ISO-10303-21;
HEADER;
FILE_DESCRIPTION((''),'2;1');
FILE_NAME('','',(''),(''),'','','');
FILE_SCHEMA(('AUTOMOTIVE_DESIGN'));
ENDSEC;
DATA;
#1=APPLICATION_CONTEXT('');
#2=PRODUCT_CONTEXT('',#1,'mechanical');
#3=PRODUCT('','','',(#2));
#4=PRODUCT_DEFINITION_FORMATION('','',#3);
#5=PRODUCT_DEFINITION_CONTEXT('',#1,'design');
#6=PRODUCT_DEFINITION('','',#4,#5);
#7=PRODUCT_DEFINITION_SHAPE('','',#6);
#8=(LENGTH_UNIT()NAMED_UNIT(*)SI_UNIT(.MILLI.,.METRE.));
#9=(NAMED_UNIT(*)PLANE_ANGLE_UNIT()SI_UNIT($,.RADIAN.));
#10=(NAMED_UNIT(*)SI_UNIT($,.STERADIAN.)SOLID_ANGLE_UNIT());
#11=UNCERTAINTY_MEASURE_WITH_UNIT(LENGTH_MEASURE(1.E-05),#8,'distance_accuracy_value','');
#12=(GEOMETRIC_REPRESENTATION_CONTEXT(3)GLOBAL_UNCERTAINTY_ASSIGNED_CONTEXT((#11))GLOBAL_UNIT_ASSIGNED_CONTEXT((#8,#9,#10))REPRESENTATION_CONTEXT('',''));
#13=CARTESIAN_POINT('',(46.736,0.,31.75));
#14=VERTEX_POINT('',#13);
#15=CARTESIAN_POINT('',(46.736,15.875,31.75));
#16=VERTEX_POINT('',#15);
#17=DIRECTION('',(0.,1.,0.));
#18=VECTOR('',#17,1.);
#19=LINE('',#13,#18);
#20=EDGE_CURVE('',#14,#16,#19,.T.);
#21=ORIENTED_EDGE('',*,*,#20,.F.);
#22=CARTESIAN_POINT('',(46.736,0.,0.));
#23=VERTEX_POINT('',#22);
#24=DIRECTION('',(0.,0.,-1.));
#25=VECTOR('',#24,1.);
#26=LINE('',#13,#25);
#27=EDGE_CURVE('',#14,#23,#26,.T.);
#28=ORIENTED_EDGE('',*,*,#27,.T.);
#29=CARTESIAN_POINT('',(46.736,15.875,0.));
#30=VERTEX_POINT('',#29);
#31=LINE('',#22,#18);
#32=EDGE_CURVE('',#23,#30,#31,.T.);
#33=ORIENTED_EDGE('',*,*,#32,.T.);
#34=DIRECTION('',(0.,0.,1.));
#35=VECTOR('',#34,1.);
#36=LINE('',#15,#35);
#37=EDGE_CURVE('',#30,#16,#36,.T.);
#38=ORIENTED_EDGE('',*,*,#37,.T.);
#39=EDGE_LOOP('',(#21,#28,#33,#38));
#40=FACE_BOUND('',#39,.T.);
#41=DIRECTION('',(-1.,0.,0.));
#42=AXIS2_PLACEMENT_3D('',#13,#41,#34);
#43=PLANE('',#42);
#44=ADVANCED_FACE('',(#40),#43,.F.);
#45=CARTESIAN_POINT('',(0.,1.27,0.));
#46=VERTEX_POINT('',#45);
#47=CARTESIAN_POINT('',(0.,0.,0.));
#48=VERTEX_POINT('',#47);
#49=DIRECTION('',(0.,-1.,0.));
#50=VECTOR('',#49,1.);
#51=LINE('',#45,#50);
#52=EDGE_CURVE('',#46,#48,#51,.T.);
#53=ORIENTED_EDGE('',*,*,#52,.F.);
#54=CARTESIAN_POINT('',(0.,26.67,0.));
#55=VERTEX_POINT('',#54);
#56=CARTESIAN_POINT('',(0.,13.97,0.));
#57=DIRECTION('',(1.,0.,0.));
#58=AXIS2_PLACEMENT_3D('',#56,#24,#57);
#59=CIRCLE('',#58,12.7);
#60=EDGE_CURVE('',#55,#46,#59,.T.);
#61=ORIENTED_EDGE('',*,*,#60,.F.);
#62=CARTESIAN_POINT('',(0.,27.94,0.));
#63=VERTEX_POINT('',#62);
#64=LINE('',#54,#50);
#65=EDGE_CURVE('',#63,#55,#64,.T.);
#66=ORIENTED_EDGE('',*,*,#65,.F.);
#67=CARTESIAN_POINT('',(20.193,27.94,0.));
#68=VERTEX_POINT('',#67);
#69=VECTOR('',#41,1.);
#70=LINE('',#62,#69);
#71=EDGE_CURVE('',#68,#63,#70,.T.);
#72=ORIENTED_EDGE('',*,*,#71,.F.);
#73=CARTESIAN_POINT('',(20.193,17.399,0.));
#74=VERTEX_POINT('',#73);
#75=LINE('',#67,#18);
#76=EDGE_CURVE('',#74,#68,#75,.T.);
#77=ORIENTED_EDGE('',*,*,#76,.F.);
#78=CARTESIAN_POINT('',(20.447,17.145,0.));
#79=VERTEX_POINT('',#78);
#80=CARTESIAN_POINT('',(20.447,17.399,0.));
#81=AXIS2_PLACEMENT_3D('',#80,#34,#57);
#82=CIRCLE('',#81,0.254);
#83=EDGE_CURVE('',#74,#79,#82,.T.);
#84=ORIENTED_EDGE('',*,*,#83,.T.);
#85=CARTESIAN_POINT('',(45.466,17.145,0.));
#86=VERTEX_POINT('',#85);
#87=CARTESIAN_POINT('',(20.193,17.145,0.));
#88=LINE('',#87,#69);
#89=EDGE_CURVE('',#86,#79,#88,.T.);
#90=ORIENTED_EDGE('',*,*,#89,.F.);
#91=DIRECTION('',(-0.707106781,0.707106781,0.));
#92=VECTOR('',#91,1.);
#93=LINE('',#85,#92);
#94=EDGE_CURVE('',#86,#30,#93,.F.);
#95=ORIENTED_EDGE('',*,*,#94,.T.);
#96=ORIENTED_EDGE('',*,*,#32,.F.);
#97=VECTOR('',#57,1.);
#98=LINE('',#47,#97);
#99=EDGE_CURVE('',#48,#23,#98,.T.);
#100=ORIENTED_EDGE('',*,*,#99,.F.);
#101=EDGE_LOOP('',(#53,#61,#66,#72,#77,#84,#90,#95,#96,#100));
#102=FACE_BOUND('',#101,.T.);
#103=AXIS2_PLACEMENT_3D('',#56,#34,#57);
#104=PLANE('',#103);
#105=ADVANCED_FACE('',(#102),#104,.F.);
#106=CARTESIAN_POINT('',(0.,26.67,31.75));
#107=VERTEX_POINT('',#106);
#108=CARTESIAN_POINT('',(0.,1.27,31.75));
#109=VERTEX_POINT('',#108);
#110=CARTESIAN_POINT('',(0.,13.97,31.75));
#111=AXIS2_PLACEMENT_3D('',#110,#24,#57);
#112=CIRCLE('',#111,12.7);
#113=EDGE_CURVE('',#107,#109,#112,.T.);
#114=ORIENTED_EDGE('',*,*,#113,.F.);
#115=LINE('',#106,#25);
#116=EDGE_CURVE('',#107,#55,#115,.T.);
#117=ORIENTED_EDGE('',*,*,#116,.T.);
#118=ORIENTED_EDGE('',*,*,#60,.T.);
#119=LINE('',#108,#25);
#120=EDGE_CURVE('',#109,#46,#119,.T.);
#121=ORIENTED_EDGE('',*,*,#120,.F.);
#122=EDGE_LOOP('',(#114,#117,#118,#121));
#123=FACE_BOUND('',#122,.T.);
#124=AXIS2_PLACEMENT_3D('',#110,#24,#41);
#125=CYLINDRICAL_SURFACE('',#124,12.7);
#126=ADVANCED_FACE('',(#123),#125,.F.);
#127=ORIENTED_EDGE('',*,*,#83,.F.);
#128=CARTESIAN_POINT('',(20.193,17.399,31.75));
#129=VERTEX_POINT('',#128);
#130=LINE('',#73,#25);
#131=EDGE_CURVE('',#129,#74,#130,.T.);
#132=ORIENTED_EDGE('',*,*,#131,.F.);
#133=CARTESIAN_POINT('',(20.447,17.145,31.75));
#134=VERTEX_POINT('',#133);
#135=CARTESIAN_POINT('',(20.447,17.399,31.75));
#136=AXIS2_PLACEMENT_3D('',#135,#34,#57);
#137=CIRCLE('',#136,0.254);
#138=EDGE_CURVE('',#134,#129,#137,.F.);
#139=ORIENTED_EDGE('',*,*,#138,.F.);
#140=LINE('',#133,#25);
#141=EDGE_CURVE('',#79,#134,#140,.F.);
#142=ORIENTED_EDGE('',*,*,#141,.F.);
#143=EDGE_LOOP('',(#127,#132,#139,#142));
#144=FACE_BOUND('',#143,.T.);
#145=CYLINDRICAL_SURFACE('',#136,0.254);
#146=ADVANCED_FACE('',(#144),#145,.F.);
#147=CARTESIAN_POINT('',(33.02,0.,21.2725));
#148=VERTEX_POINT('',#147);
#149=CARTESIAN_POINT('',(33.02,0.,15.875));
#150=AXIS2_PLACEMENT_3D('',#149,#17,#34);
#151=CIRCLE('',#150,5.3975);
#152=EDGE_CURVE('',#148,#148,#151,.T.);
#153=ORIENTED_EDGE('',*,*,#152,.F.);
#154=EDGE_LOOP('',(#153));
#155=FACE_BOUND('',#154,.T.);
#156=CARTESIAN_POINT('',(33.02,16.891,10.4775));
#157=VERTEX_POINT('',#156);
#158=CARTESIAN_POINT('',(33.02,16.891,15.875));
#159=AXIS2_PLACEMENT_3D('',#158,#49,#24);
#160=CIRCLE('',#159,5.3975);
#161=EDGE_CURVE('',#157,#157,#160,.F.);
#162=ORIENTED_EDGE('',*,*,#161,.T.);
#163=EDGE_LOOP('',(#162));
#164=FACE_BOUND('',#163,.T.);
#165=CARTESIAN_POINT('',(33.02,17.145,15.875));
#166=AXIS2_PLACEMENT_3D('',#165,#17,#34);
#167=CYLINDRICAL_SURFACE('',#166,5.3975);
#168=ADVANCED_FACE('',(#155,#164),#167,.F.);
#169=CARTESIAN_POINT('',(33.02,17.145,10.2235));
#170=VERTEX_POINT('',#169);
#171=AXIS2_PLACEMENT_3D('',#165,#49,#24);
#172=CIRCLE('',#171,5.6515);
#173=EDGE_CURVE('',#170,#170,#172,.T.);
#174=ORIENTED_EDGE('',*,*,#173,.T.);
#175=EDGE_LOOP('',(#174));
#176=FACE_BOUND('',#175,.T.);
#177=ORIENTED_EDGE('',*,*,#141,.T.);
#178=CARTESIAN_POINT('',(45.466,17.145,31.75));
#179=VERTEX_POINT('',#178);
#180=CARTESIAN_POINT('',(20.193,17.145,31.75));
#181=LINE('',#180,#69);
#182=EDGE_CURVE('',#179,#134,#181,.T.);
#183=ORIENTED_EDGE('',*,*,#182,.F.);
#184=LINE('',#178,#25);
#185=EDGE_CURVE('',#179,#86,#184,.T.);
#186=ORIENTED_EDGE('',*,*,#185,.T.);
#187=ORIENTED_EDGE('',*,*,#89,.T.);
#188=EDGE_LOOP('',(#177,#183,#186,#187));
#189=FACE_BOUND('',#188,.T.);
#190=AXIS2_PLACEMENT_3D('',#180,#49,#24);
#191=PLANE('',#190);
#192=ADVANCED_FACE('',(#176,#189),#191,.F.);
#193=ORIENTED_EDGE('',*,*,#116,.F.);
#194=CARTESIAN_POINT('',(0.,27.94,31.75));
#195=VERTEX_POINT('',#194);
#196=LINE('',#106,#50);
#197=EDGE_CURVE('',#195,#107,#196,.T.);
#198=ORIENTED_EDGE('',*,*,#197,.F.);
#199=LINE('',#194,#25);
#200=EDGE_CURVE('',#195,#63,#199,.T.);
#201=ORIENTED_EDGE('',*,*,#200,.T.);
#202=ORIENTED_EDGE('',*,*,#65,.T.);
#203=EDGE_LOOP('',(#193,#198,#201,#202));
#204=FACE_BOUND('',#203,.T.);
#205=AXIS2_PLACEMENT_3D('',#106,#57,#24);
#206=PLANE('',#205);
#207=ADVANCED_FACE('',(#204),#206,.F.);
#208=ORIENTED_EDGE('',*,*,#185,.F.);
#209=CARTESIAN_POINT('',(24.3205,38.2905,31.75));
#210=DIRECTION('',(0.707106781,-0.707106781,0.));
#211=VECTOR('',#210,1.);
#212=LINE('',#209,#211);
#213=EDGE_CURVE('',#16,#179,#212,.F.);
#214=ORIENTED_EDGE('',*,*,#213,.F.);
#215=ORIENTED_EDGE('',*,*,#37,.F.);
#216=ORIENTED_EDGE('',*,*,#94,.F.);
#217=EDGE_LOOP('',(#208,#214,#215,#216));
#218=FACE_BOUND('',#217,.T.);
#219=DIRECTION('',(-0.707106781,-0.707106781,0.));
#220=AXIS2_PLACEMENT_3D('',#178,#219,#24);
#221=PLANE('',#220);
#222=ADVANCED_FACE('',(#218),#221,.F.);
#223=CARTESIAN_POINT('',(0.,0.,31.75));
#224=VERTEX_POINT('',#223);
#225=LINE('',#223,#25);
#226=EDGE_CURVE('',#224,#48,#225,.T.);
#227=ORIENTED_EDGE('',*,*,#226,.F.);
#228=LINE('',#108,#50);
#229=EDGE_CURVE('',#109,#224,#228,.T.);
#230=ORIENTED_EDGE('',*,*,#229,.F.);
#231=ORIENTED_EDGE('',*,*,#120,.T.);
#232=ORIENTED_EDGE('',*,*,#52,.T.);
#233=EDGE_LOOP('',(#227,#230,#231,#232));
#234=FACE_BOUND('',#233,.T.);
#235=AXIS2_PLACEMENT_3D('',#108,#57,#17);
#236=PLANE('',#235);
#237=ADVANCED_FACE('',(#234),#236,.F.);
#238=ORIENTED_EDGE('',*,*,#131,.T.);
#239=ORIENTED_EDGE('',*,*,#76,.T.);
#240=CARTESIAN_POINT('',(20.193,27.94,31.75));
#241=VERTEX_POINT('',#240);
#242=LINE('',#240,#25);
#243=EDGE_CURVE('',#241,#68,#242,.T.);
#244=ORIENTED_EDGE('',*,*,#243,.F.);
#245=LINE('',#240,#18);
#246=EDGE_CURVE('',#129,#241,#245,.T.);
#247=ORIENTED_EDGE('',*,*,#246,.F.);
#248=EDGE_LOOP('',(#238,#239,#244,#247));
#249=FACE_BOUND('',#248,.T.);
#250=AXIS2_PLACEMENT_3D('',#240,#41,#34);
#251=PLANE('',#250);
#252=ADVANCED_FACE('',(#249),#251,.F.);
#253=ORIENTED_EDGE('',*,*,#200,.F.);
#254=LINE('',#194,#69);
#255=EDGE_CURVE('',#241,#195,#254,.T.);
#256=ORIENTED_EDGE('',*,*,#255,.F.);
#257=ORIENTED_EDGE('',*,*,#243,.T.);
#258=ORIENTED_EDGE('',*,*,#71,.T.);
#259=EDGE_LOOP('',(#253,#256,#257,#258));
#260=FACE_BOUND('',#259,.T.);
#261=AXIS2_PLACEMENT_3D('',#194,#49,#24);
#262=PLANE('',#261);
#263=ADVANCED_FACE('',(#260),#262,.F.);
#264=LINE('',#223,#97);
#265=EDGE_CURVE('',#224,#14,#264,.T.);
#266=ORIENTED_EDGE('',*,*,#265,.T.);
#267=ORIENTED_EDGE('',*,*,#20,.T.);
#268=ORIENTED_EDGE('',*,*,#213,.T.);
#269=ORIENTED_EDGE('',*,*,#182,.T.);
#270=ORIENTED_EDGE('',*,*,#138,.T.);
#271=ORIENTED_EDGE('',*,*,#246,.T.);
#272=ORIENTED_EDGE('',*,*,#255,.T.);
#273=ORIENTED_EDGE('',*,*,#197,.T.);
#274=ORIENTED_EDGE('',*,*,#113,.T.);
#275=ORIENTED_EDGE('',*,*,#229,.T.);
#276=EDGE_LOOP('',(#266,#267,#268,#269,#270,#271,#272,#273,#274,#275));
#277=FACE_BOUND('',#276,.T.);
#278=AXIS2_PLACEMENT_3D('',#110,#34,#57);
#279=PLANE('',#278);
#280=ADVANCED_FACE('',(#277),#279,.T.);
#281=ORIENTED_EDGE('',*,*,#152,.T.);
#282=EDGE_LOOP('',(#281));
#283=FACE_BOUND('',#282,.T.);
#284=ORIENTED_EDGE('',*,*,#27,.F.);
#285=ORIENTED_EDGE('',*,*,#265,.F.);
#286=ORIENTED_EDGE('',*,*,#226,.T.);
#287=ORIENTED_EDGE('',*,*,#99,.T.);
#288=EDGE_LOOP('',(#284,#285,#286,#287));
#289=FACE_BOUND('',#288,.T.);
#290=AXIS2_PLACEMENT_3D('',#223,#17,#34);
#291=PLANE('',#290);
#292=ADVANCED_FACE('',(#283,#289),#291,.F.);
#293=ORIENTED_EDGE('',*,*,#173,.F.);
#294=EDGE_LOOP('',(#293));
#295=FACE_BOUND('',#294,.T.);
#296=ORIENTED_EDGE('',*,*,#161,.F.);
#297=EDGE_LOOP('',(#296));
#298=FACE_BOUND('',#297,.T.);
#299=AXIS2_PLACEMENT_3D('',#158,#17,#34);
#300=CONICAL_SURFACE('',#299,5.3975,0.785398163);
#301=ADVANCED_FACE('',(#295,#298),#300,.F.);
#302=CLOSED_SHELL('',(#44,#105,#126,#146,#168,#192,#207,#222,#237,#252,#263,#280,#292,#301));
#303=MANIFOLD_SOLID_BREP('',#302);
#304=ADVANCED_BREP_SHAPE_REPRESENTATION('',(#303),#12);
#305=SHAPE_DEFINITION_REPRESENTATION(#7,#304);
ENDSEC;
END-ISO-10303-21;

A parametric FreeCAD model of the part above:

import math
import FreeCAD as App
import Part
import Sketcher

V = App.Vector
Q = App.Units.Quantity


def edges_at(feature, points):
    """Names of the edges that pass closest to the given points."""
    edges = feature.Shape.Edges
    near = lambda p: min(range(len(edges)), key=lambda i: edges[i].distToShape(Part.Vertex(*p))[0])
    return sorted({f"Edge{near(p) + 1}" for p in points})

doc = App.newDocument("Part")
params = doc.addObject("Spreadsheet::Sheet", "Params")
for row, (alias, value) in enumerate([
    ("sketch1_radius", "0.5 in"),
    ("sketch1_width", "1.84 in"),
    ("sketch1_height", "0.05 in"),
    ("sketch1_width2", "1.045 in"),
    ("sketch1_height2", "0.675 in"),
    ("pad1_length", "1.25 in"),
    ("sketch2_diameter", "0.425 in"),
    ("hole_diameter", "0.425 in"),
    ("chamfer_size", "0.05 in"),
    ("chamfer2_size", "0.01 in"),
    ("fillet_radius", "0.01 in"),
], start=1):
    params.set(f"A{row}", alias)
    params.set(f"B{row}", "=" + value)
    params.setAlias(f"B{row}", alias)

body = doc.addObject("PartDesign::Body", "Body")

sketch1 = body.newObject("Sketcher::SketchObject", "Sketch")
sketch1.AttachmentSupport = (doc.getObject("XY_Plane"), [""])
sketch1.MapMode = "FlatFace"
sketch1.addGeometry(Part.LineSegment(V(46.736, 0, 0), V(46.736, 17.145, 0)), False)
sketch1.addGeometry(Part.LineSegment(V(46.736, 17.145, 0), V(20.193, 17.145, 0)), False)
sketch1.addGeometry(Part.LineSegment(V(20.193, 17.145, 0), V(20.193, 27.94, 0)), False)
sketch1.addGeometry(Part.LineSegment(V(20.193, 27.94, 0), V(0, 27.94, 0)), False)
sketch1.addGeometry(Part.LineSegment(V(0, 27.94, 0), V(0, 26.67, 0)), False)
sketch1.addGeometry(Part.ArcOfCircle(Part.Circle(V(0, 13.97, 0), V(0, 0, 1), 12.7), math.radians(-90), math.radians(90)), False)
sketch1.addGeometry(Part.LineSegment(V(0, 1.27, 0), V(0, 0, 0)), False)
sketch1.addGeometry(Part.LineSegment(V(0, 0, 0), V(46.736, 0, 0)), False)
sketch1.addConstraint(Sketcher.Constraint("Coincident", 0, 2, 1, 1))
sketch1.addConstraint(Sketcher.Constraint("Coincident", 1, 2, 2, 1))
sketch1.addConstraint(Sketcher.Constraint("Coincident", 2, 2, 3, 1))
sketch1.addConstraint(Sketcher.Constraint("Coincident", 3, 2, 4, 1))
sketch1.addConstraint(Sketcher.Constraint("Coincident", 4, 2, 5, 2))
sketch1.addConstraint(Sketcher.Constraint("Coincident", 5, 1, 6, 1))
sketch1.addConstraint(Sketcher.Constraint("Coincident", 6, 2, 7, 1))
sketch1.addConstraint(Sketcher.Constraint("Coincident", 7, 2, 0, 1))
sketch1.addConstraint(Sketcher.Constraint("Vertical", 0))
sketch1.addConstraint(Sketcher.Constraint("Horizontal", 1))
sketch1.addConstraint(Sketcher.Constraint("Vertical", 2))
sketch1.addConstraint(Sketcher.Constraint("Horizontal", 3))
sketch1.addConstraint(Sketcher.Constraint("Vertical", 4))
sketch1.addConstraint(Sketcher.Constraint("Vertical", 6))
sketch1.addConstraint(Sketcher.Constraint("Horizontal", 7))
sketch1.addConstraint(Sketcher.Constraint("Coincident", 6, 2, -1, 1))
sketch1.addConstraint(Sketcher.Constraint("PointOnObject", 5, 3, -2))
sketch1.addConstraint(Sketcher.Constraint("PointOnObject", 3, 2, -2))
sketch1.addConstraint(Sketcher.Constraint("Equal", 4, 6))
sketch1.addConstraint(Sketcher.Constraint("Radius", 5, Q("0.5 in")))
sketch1.addConstraint(Sketcher.Constraint("DistanceX", 7, 1, 7, 2, Q("1.84 in")))
sketch1.addConstraint(Sketcher.Constraint("DistanceY", 4, 2, 4, 1, Q("0.05 in")))
sketch1.addConstraint(Sketcher.Constraint("DistanceX", 1, 2, 1, 1, Q("1.045 in")))
sketch1.addConstraint(Sketcher.Constraint("DistanceY", 0, 1, 0, 2, Q("0.675 in")))
sketch1.setExpression("Constraints[19]", "Params.sketch1_radius")
sketch1.setExpression("Constraints[20]", "Params.sketch1_width")
sketch1.setExpression("Constraints[21]", "Params.sketch1_height")
sketch1.setExpression("Constraints[22]", "Params.sketch1_width2")
sketch1.setExpression("Constraints[23]", "Params.sketch1_height2")
pad1 = body.newObject("PartDesign::Pad", "Pad")
pad1.Profile = sketch1
pad1.setExpression("Length", "Params.pad1_length")

sketch2 = body.newObject("Sketcher::SketchObject", "Sketch001")
sketch2.AttachmentSupport = (doc.getObject("XZ_Plane"), [""])
sketch2.MapMode = "FlatFace"
sketch2.AttachmentOffset = App.Placement(V(0, 0, -0.675 * 25.4), App.Rotation())
sketch2.addGeometry(Part.Circle(V(33.02, 15.875, 0), V(0, 0, 1), 5.3975), False)
sketch2.addConstraint(Sketcher.Constraint("Diameter", 0, Q("0.425 in")))
sketch2.addConstraint(Sketcher.Constraint("DistanceX", -1, 1, 0, 3, Q("1.3 in")))
sketch2.addConstraint(Sketcher.Constraint("DistanceY", -1, 1, 0, 3, Q("0.625 in")))
sketch2.setExpression("Constraints[0]", "Params.sketch2_diameter")
doc.recompute()
hole = body.newObject("PartDesign::Hole", "Hole")
hole.Profile = sketch2
hole.ThreadType = "None"
hole.setExpression("Diameter", "Params.hole_diameter")
hole.DepthType = "ThroughAll"
hole.Reversed = True
doc.recompute()

chamfer = body.newObject("PartDesign::Chamfer", "Chamfer")
chamfer.Base = (hole, edges_at(hole, [(46.736, 17.145, 15.875)]))
chamfer.setExpression("Size", "Params.chamfer_size")
doc.recompute()

chamfer2 = body.newObject("PartDesign::Chamfer", "Chamfer001")
chamfer2.Base = (chamfer, edges_at(chamfer, [(38.417, 17.145, 15.875)]))
chamfer2.setExpression("Size", "Params.chamfer2_size")
doc.recompute()

fillet = body.newObject("PartDesign::Fillet", "Fillet")
fillet.Base = (chamfer2, edges_at(chamfer2, [(20.193, 17.145, 15.875)]))
fillet.setExpression("Radius", "Params.fillet_radius")

doc.recompute()
